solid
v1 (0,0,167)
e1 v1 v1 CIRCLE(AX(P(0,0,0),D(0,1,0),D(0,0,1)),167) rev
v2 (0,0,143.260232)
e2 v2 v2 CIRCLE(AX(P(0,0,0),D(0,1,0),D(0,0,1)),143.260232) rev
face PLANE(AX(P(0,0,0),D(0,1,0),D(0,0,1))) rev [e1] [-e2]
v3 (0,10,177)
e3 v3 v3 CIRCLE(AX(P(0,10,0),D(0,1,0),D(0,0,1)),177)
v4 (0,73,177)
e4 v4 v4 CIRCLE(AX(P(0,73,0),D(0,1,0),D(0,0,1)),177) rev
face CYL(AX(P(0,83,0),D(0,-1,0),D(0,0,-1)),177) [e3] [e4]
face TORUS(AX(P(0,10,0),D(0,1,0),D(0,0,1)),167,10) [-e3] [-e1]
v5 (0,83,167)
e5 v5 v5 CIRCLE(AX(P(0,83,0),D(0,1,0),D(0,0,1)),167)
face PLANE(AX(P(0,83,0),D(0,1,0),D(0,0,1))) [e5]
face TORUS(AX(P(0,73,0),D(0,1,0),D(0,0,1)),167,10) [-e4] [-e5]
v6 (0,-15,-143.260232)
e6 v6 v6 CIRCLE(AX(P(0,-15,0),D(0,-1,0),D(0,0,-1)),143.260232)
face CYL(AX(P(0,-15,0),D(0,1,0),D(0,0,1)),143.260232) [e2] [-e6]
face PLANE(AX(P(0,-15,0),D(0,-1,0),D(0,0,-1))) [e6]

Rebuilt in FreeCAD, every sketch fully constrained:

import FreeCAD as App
import Part
import Sketcher

V = App.Vector


def edges_at(feature, points):
    """Names of the edges that pass closest to the given points."""
    edges = feature.Shape.Edges
    near = lambda p: min(range(len(edges)), key=lambda i: edges[i].distToShape(Part.Vertex(*p))[0])
    return sorted({f"Edge{near(p) + 1}" for p in points})

doc = App.newDocument("Part")
body = doc.addObject("PartDesign::Body", "Body")

# Sketch on XZ plane
sketch1 = doc.addObject("Sketcher::SketchObject", "Sketch")
body.addObject(sketch1)
sketch1.AttachmentSupport = (doc.XZ_Plane, [""])
sketch1.MapMode = "FlatFace"
sketch1.addGeometry(Part.Circle(V(0, 0, 0), V(0, 0, 1), 177), False)
sketch1.addConstraint(Sketcher.Constraint("Coincident", 0, 3, -1, 1))
sketch1.addConstraint(Sketcher.Constraint("Diameter", 0, 354.0))
pad1 = doc.addObject("PartDesign::Pad", "Pad")
body.addObject(pad1)
pad1.Profile = sketch1
pad1.Length = 83
pad1.Reversed = True
doc.recompute()

fillet = doc.addObject("PartDesign::Fillet", "Fillet")
body.addObject(fillet)
fillet.Base = (pad1, edges_at(pad1, [(-177, 0, 0), (-177, 83, 0)]))
fillet.Radius = 10

# Sketch on XZ plane
sketch2 = doc.addObject("Sketcher::SketchObject", "Sketch001")
body.addObject(sketch2)
sketch2.AttachmentSupport = (doc.XZ_Plane, [""])
sketch2.MapMode = "FlatFace"
sketch2.addGeometry(Part.Circle(V(0, 0, 0), V(0, 0, 1), 143), False)
sketch2.addConstraint(Sketcher.Constraint("Coincident", 0, 3, -1, 1))
sketch2.addConstraint(Sketcher.Constraint("Diameter", 0, 286.520464))
pad2 = doc.addObject("PartDesign::Pad", "Pad001")
body.addObject(pad2)
pad2.Profile = sketch2
pad2.Length = 15

doc.recompute()
